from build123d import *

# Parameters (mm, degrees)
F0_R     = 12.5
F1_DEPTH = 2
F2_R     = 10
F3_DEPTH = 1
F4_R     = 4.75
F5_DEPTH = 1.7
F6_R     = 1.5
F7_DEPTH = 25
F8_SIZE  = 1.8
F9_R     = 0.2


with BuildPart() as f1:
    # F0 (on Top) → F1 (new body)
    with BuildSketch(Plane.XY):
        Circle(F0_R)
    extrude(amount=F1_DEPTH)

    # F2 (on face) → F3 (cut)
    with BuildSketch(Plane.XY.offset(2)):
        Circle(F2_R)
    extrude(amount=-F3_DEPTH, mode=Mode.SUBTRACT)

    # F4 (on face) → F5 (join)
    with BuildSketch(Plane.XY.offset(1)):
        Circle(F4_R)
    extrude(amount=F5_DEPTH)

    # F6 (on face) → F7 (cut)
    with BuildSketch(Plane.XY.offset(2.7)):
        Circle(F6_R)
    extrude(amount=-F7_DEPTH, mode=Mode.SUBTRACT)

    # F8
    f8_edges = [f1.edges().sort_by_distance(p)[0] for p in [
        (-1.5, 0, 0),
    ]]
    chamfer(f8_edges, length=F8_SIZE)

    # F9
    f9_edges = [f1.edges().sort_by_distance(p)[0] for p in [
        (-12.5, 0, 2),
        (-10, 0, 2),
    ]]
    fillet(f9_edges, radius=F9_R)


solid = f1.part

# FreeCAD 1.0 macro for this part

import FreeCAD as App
import Part
import Sketcher
from FreeCAD import Vector


def edges_at(feature, points):
    """Names of the edges that pass closest to the given points."""
    edges = feature.Shape.Edges
    near = lambda p: min(range(len(edges)), key=lambda i: edges[i].distToShape(Part.Vertex(*p))[0])
    return sorted({f"Edge{near(p) + 1}" for p in points})

doc = App.newDocument("Part")
body = doc.addObject("PartDesign::Body", "Body")

# Sketch on XY plane
sketch1 = doc.addObject("Sketcher::SketchObject", "Sketch")
body.addObject(sketch1)
sketch1.AttachmentSupport = (doc.XY_Plane, [""])
sketch1.MapMode = "FlatFace"
sketch1.addGeometry(Part.Circle(Vector(0, 0, 0), Vector(0, 0, 1), 12), False)
sketch1.addConstraint([
    Sketcher.Constraint("Coincident", 0, 3, -1, 1),
    Sketcher.Constraint("Diameter", 0, 25.0),
])
pad1 = doc.addObject("PartDesign::Pad", "Pad")
body.addObject(pad1)
pad1.Profile = sketch1
pad1.Length = 2

# Sketch on XY plane
sketch2 = doc.addObject("Sketcher::SketchObject", "Sketch001")
body.addObject(sketch2)
sketch2.AttachmentSupport = (doc.XY_Plane, [""])
sketch2.MapMode = "FlatFace"
sketch2.AttachmentOffset = App.Placement(Vector(0, 0, 2), App.Rotation())
sketch2.addGeometry(Part.Circle(Vector(0, 0, 0), Vector(0, 0, 1), 10), False)
sketch2.addConstraint([
    Sketcher.Constraint("Coincident", 0, 3, -1, 1),
    Sketcher.Constraint("Diameter", 0, 20.0),
])
pocket1 = doc.addObject("PartDesign::Pocket", "Pocket")
body.addObject(pocket1)
pocket1.Profile = sketch2
pocket1.Length = 1

# Sketch on XY plane
sketch3 = doc.addObject("Sketcher::SketchObject", "Sketch002")
body.addObject(sketch3)
sketch3.AttachmentSupport = (doc.XY_Plane, [""])
sketch3.MapMode = "FlatFace"
sketch3.AttachmentOffset = App.Placement(Vector(0, 0, 1), App.Rotation())
sketch3.addGeometry(Part.Circle(Vector(0, 0, 0), Vector(0, 0, 1), 4.8), False)
sketch3.addConstraint([
    Sketcher.Constraint("Coincident", 0, 3, -1, 1),
    Sketcher.Constraint("Diameter", 0, 9.5),
])
pad2 = doc.addObject("PartDesign::Pad", "Pad001")
body.addObject(pad2)
pad2.Profile = sketch3
pad2.Length = 1.7

# Sketch on XY plane
sketch4 = doc.addObject("Sketcher::SketchObject", "Sketch003")
body.addObject(sketch4)
sketch4.AttachmentSupport = (doc.XY_Plane, [""])
sketch4.MapMode = "FlatFace"
sketch4.AttachmentOffset = App.Placement(Vector(0, 0, 2.7), App.Rotation())
sketch4.addGeometry(Part.Circle(Vector(0, 0, 0), Vector(0, 0, 1), 1.5), False)
sketch4.addConstraint([
    Sketcher.Constraint("Coincident", 0, 3, -1, 1),
    Sketcher.Constraint("Diameter", 0, 3.0),
])
pocket2 = doc.addObject("PartDesign::Pocket", "Pocket001")
body.addObject(pocket2)
pocket2.Profile = sketch4
pocket2.Length = 25
doc.recompute()

chamfer = doc.addObject("PartDesign::Chamfer", "Chamfer")
body.addObject(chamfer)
chamfer.Base = (pocket2, edges_at(pocket2, [(-1.5, 0, 0)]))
chamfer.Size = 1.8
doc.recompute()

fillet = doc.addObject("PartDesign::Fillet", "Fillet")
body.addObject(fillet)
fillet.Base = (chamfer, edges_at(chamfer, [(-12.5, 0, 2), (-10, 0, 2)]))
fillet.Radius = 0.2

doc.recompute()
